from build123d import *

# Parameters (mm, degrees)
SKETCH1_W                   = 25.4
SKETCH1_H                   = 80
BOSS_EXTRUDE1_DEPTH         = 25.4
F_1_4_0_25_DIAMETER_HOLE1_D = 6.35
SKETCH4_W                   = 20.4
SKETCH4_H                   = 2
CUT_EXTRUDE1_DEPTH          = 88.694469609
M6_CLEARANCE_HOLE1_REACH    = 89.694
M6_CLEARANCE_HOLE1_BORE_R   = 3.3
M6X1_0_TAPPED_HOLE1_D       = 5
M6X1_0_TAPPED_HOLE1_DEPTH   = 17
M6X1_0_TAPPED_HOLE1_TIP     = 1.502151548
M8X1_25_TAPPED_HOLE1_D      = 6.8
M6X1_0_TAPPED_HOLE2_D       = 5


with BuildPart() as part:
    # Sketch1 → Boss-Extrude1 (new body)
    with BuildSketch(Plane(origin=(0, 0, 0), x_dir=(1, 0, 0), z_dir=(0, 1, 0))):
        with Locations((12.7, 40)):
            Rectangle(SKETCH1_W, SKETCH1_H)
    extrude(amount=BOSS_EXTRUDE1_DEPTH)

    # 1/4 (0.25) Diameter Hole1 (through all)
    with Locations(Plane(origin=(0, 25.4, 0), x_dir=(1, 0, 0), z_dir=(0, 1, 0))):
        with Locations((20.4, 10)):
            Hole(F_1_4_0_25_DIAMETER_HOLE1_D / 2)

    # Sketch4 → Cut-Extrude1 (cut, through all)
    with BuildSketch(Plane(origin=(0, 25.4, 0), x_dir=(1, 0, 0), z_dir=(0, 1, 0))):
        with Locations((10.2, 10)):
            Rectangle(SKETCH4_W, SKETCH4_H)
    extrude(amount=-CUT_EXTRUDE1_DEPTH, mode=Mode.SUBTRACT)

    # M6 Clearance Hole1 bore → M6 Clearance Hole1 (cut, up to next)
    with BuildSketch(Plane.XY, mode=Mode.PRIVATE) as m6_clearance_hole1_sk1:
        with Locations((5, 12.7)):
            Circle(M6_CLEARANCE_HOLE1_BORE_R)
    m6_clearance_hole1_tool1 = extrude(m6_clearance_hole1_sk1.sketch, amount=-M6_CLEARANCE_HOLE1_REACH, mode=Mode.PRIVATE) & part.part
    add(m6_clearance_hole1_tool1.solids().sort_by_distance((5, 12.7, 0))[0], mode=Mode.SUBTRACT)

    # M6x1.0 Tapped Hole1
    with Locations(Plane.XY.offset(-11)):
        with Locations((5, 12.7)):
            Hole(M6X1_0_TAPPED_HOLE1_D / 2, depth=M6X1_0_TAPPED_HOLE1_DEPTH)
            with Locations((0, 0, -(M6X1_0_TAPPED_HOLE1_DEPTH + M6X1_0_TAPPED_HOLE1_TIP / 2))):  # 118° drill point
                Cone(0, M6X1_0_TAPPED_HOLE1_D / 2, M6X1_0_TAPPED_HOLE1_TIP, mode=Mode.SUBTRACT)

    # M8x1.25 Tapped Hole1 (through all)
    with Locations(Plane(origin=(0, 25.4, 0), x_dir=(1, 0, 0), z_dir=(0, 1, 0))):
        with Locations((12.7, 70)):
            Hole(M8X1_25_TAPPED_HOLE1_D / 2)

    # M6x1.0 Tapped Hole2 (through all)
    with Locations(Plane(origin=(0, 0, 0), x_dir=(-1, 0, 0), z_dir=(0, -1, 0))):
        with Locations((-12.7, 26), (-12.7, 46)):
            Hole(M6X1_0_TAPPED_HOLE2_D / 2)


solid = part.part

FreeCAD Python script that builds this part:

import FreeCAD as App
import Part
import Sketcher
from FreeCAD import Vector
Q = App.Units.Quantity


def add_polygon(sketch, points):
    """Adds a closed chain of lines whose ends are joined by coincident constraints."""
    first, n = sketch.GeometryCount, len(points)
    for a, b in zip(points, points[1:] + points[:1]):
        sketch.addGeometry(Part.LineSegment(App.Vector(*a, 0), App.Vector(*b, 0)), False)
    for i in range(n):
        sketch.addConstraint(Sketcher.Constraint("Coincident", first + i, 2, first + (i + 1) % n, 1))

doc = App.newDocument("Part")
body = doc.addObject("PartDesign::Body", "Body")

sketch1 = body.newObject("Sketcher::SketchObject", "Sketch")
sketch1.AttachmentSupport = (doc.getObject("XZ_Plane"), [""])
sketch1.MapMode = "FlatFace"
add_polygon(sketch1, [(0, -80), (0, 0), (25.4, 0), (25.4, -80)])
sketch1.addConstraint(Sketcher.Constraint("Vertical", 0))
sketch1.addConstraint(Sketcher.Constraint("Horizontal", 1))
sketch1.addConstraint(Sketcher.Constraint("Vertical", 2))
sketch1.addConstraint(Sketcher.Constraint("Horizontal", 3))
sketch1.addConstraint(Sketcher.Constraint("Coincident", 0, 2, -1, 1))
sketch1.addConstraint(Sketcher.Constraint("DistanceY", 0, 1, 0, 2, Q("80 mm")))
sketch1.addConstraint(Sketcher.Constraint("DistanceX", 1, 1, 1, 2, Q("25.4 mm")))
pad1 = body.newObject("PartDesign::Pad", "Pad")
pad1.Profile = sketch1
pad1.Length = 25.4
pad1.Reversed = True

sketch2 = body.newObject("Sketcher::SketchObject", "Sketch001")
sketch2.AttachmentSupport = (doc.getObject("XZ_Plane"), [""])
sketch2.MapMode = "FlatFace"
sketch2.AttachmentOffset = App.Placement(Vector(0, 0, -25.4), App.Rotation())
sketch2.addGeometry(Part.Circle(Vector(20.4, -10, 0), Vector(0, 0, 1), 3.175), False)
sketch2.addConstraint(Sketcher.Constraint("Diameter", 0, Q("6.35 mm")))
sketch2.addConstraint(Sketcher.Constraint("DistanceY", 0, 3, -1, 1, Q("10 mm")))
sketch2.addConstraint(Sketcher.Constraint("DistanceX", -1, 1, 0, 3, Q("20.4 mm")))
doc.recompute()
hole = body.newObject("PartDesign::Hole", "Hole")
hole.Profile = sketch2
hole.ThreadType = "None"
hole.Diameter = 6.35
hole.DepthType = "ThroughAll"
hole.Reversed = True

sketch3 = body.newObject("Sketcher::SketchObject", "Sketch002")
sketch3.AttachmentSupport = (doc.getObject("XZ_Plane"), [""])
sketch3.MapMode = "FlatFace"
sketch3.AttachmentOffset = App.Placement(Vector(0, 0, -25.4), App.Rotation())
add_polygon(sketch3, [(0, -11), (0, -9), (20.4, -9), (20.4, -11)])
sketch3.addConstraint(Sketcher.Constraint("Vertical", 0))
sketch3.addConstraint(Sketcher.Constraint("Horizontal", 1))
sketch3.addConstraint(Sketcher.Constraint("Vertical", 2))
sketch3.addConstraint(Sketcher.Constraint("Horizontal", 3))
sketch3.addConstraint(Sketcher.Constraint("PointOnObject", 0, 2, -2))
sketch3.addConstraint(Sketcher.Constraint("DistanceY", 0, 1, 0, 2, Q("2 mm")))
sketch3.addConstraint(Sketcher.Constraint("DistanceX", 1, 1, 1, 2, Q("20.4 mm")))
sketch3.addConstraint(Sketcher.Constraint("DistanceY", 0, 2, -1, 1, Q("9 mm")))
pocket1 = body.newObject("PartDesign::Pocket", "Pocket")
pocket1.Profile = sketch3
pocket1.Type = "ThroughAll"
pocket1.Reversed = True

sketch4 = body.newObject("Sketcher::SketchObject", "Sketch003")
sketch4.AttachmentSupport = (doc.getObject("XY_Plane"), [""])
sketch4.MapMode = "FlatFace"
sketch4.addGeometry(Part.Circle(Vector(5, 12.7, 0), Vector(0, 0, 1), 3.3), False)
sketch4.addConstraint(Sketcher.Constraint("Diameter", 0, Q("6.6 mm")))
sketch4.addConstraint(Sketcher.Constraint("DistanceX", -1, 1, 0, 3, Q("5 mm")))
sketch4.addConstraint(Sketcher.Constraint("DistanceY", -1, 1, 0, 3, Q("12.7 mm")))
pocket2 = body.newObject("PartDesign::Pocket", "Pocket001")
pocket2.Profile = sketch4
pocket2.Type = "UpToFirst"

sketch5 = body.newObject("Sketcher::SketchObject", "Sketch004")
sketch5.AttachmentSupport = (doc.getObject("XY_Plane"), [""])
sketch5.MapMode = "FlatFace"
sketch5.AttachmentOffset = App.Placement(Vector(0, 0, -11), App.Rotation())
sketch5.addGeometry(Part.Circle(Vector(5, 12.7, 0), Vector(0, 0, 1), 2.5), False)
sketch5.addConstraint(Sketcher.Constraint("Diameter", 0, Q("5 mm")))
sketch5.addConstraint(Sketcher.Constraint("DistanceX", -1, 1, 0, 3, Q("5 mm")))
sketch5.addConstraint(Sketcher.Constraint("DistanceY", -1, 1, 0, 3, Q("12.7 mm")))
doc.recompute()
hole2 = body.newObject("PartDesign::Hole", "Hole001")
hole2.Profile = sketch5
hole2.ThreadType = "None"
hole2.Diameter = 5
hole2.DepthType = "Dimension"
hole2.Depth = 17
hole2.DrillPoint = "Angled"
hole2.DrillPointAngle = 118

sketch6 = body.newObject("Sketcher::SketchObject", "Sketch005")
sketch6.AttachmentSupport = (doc.getObject("XZ_Plane"), [""])
sketch6.MapMode = "FlatFace"
sketch6.AttachmentOffset = App.Placement(Vector(0, 0, -25.4), App.Rotation())
sketch6.addGeometry(Part.Circle(Vector(12.7, -70, 0), Vector(0, 0, 1), 3.4), False)
sketch6.addConstraint(Sketcher.Constraint("Diameter", 0, Q("6.8 mm")))
sketch6.addConstraint(Sketcher.Constraint("DistanceY", 0, 3, -1, 1, Q("70 mm")))
sketch6.addConstraint(Sketcher.Constraint("DistanceX", -1, 1, 0, 3, Q("12.7 mm")))
doc.recompute()
hole3 = body.newObject("PartDesign::Hole", "Hole002")
hole3.Profile = sketch6
hole3.ThreadType = "None"
hole3.Diameter = 6.8
hole3.DepthType = "ThroughAll"
hole3.Reversed = True

sketch7 = body.newObject("Sketcher::SketchObject", "Sketch006")
sketch7.AttachmentSupport = (doc.getObject("XZ_Plane"), [""])
sketch7.MapMode = "FlatFace"
sketch7.addGeometry(Part.Circle(Vector(12.7, -26, 0), Vector(0, 0, 1), 2.5), False)
sketch7.addGeometry(Part.Circle(Vector(12.7, -46, 0), Vector(0, 0, 1), 2.5), False)
sketch7.addConstraint(Sketcher.Constraint("Equal", 0, 1))
sketch7.addConstraint(Sketcher.Constraint("Vertical", 0, 3, 1, 3))
sketch7.addConstraint(Sketcher.Constraint("Diameter", 0, Q("5 mm")))
sketch7.addConstraint(Sketcher.Constraint("DistanceY", 0, 3, -1, 1, Q("26 mm")))
sketch7.addConstraint(Sketcher.Constraint("DistanceY", 1, 3, -1, 1, Q("46 mm")))
sketch7.addConstraint(Sketcher.Constraint("DistanceX", -1, 1, 0, 3, Q("12.7 mm")))
doc.recompute()
hole4 = body.newObject("PartDesign::Hole", "Hole003")
hole4.Profile = sketch7
hole4.ThreadType = "None"
hole4.Diameter = 5
hole4.DepthType = "ThroughAll"

doc.recompute()
